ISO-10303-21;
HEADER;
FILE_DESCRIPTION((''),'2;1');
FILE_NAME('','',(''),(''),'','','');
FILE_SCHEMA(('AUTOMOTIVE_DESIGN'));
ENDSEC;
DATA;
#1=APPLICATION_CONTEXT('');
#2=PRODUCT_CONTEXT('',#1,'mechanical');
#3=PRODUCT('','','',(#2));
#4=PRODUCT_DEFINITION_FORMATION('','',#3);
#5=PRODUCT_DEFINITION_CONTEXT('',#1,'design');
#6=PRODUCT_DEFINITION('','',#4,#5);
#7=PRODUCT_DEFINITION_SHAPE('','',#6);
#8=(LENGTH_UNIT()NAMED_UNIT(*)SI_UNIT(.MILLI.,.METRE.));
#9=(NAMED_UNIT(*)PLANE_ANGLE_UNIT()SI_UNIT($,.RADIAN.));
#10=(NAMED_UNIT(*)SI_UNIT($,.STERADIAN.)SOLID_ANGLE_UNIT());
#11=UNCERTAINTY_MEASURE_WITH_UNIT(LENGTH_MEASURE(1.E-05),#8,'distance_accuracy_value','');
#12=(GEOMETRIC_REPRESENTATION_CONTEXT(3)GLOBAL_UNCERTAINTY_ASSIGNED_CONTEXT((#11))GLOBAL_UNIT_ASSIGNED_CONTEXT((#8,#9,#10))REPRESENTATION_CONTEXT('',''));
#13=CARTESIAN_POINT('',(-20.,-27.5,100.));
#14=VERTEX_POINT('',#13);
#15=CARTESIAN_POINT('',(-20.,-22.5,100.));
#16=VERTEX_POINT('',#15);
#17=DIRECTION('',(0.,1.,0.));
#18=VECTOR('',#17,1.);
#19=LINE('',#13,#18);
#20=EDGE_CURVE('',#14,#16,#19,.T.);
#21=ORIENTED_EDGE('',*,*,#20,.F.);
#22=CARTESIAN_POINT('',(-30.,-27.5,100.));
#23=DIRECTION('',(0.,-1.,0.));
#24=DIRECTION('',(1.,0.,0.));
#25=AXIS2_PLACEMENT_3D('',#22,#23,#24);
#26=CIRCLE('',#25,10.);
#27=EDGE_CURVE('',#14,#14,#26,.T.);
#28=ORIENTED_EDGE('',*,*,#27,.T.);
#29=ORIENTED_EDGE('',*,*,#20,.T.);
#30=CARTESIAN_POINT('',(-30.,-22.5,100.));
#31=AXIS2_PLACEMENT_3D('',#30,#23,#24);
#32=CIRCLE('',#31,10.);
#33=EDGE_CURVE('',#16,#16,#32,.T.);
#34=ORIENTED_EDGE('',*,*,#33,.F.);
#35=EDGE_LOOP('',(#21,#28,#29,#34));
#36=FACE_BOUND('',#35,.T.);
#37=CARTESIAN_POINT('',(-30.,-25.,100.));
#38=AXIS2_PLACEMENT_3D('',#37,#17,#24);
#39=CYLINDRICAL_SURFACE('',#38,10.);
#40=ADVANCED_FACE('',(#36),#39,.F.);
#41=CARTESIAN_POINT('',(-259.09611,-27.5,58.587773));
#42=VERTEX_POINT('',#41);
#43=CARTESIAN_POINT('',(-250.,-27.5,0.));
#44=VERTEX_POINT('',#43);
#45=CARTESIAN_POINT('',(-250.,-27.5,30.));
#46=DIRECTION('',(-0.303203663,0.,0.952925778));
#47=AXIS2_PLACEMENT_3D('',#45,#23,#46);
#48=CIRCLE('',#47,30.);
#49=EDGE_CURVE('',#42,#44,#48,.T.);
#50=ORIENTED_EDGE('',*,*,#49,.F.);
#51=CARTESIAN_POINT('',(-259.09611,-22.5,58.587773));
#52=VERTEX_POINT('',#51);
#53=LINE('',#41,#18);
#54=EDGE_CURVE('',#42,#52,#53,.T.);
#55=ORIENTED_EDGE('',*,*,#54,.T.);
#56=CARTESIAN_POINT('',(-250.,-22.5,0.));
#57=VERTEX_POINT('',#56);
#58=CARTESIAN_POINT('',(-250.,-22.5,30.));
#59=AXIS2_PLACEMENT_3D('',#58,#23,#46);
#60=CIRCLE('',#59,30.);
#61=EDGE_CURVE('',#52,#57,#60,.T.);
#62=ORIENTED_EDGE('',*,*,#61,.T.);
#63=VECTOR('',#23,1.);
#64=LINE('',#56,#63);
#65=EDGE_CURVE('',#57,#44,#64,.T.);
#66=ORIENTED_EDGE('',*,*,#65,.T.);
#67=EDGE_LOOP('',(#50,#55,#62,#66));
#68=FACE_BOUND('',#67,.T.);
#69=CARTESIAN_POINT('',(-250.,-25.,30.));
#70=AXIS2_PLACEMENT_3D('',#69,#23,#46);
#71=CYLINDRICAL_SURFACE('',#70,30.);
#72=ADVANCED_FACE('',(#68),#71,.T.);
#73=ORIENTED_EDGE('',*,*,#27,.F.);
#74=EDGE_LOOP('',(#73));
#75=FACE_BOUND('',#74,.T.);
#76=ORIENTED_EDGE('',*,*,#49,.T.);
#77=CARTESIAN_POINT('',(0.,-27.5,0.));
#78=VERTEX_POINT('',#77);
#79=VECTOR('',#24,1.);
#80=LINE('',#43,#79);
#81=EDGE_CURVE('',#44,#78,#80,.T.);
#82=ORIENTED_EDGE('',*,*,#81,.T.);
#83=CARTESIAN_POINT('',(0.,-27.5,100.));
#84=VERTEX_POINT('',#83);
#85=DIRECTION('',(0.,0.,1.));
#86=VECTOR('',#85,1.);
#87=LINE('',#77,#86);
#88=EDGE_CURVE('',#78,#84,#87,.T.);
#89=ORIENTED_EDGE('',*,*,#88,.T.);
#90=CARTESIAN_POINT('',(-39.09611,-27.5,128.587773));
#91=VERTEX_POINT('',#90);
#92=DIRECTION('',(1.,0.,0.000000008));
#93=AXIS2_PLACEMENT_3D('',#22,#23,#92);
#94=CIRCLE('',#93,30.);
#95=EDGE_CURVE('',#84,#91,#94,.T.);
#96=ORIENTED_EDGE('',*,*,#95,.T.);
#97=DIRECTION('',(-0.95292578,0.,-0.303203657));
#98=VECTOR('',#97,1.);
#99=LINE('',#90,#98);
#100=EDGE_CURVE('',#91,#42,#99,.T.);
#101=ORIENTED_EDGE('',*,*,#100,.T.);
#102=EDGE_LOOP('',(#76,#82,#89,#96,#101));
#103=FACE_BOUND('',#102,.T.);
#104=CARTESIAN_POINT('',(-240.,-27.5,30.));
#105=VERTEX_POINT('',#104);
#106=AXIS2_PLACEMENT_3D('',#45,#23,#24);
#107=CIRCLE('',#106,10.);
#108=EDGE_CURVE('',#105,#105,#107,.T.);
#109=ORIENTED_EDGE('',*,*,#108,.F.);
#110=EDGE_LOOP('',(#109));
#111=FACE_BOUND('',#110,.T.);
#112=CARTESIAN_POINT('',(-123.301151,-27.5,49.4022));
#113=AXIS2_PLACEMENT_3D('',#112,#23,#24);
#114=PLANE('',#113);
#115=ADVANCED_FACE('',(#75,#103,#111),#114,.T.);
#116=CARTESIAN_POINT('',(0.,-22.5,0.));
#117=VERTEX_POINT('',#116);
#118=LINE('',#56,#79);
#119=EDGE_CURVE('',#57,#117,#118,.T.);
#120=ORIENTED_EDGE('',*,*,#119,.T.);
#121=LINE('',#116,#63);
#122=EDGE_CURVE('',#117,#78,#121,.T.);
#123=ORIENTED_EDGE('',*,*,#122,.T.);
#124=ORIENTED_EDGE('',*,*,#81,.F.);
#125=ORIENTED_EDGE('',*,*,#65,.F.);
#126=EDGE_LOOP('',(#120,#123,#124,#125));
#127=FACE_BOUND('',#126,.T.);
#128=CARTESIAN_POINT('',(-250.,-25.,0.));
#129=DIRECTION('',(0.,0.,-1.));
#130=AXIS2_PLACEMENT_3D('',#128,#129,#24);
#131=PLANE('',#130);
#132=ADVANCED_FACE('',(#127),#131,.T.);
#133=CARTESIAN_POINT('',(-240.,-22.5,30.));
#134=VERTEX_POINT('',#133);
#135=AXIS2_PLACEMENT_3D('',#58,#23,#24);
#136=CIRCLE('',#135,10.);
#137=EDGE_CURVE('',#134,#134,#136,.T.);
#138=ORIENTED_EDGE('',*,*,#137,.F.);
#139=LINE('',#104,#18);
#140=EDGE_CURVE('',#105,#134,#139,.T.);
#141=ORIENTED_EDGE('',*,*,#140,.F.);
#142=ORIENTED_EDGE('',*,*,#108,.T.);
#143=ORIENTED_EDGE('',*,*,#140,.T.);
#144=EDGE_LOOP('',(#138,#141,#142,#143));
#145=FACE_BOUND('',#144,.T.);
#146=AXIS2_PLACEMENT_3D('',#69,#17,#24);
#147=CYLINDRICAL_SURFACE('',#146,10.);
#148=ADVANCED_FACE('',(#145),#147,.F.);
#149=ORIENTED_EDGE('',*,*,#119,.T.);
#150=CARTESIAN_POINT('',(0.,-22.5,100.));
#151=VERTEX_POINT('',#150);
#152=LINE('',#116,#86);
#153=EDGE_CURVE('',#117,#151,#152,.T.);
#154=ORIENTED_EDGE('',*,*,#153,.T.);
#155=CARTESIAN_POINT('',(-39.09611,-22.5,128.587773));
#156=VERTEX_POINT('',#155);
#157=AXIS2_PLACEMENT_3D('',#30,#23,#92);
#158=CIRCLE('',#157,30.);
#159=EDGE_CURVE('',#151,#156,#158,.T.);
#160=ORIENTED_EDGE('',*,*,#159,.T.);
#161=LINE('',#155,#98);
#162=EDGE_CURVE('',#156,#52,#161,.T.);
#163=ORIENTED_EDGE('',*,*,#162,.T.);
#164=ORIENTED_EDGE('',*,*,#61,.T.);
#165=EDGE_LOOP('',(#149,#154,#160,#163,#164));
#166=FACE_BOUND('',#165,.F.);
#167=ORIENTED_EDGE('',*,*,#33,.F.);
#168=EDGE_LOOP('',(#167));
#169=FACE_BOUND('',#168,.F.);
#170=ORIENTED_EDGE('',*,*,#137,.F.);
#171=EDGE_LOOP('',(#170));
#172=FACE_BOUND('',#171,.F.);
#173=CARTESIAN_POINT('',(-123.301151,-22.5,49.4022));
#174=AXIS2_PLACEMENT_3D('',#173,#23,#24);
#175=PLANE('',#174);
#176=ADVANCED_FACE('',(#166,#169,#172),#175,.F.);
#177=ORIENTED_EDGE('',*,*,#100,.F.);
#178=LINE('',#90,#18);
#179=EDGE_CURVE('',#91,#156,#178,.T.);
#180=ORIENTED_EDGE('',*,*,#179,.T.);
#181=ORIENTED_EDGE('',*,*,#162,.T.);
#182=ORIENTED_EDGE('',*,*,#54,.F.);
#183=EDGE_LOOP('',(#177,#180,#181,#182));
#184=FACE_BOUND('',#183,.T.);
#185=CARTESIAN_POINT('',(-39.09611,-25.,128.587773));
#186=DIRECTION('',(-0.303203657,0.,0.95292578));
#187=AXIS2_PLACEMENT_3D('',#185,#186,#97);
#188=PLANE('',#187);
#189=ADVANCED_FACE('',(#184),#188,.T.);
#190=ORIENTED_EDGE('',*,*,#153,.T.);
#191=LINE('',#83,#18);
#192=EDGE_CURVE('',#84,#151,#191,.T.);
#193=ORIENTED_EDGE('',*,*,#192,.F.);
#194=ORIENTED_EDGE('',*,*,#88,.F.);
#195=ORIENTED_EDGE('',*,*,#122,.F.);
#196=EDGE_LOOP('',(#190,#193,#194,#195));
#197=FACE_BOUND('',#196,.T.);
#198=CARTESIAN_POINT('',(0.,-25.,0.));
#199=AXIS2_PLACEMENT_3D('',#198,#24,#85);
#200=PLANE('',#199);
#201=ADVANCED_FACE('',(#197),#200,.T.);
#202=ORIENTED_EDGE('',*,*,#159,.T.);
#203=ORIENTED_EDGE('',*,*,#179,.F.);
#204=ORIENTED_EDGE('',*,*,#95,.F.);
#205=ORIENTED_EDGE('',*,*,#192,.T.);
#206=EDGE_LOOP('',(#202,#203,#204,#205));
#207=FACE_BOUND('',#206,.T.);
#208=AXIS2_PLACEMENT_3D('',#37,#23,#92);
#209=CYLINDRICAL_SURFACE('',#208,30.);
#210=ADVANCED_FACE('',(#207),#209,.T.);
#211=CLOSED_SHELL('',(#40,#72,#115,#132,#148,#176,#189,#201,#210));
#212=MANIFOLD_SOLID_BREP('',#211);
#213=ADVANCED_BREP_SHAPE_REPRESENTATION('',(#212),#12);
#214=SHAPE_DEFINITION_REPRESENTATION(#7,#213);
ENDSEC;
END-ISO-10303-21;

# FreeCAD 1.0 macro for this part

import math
import FreeCAD as App
import Part
import Sketcher
Q = App.Units.Quantity

doc = App.newDocument("Part")
body = doc.addObject("PartDesign::Body", "Body")

sketch1 = body.newObject("Sketcher::SketchObject", "Sketch")
sketch1.AttachmentSupport = (doc.getObject("XZ_Plane"), [""])
sketch1.MapMode = "FlatFace"
sketch1.AttachmentOffset = App.Placement(App.Vector(0, 0, 25), App.Rotation())
sketch1.addGeometry(Part.ArcOfCircle(Part.Circle(App.Vector(-250, 30, 0), App.Vector(0, 0, 1), 30), math.radians(108), math.radians(270)), False)
sketch1.addGeometry(Part.LineSegment(App.Vector(-250, 0, 0), App.Vector(0, 0, 0)), False)
sketch1.addGeometry(Part.LineSegment(App.Vector(0, 0, 0), App.Vector(0, 100, 0)), False)
sketch1.addGeometry(Part.ArcOfCircle(Part.Circle(App.Vector(-30, 100, 0), App.Vector(0, 0, 1), 30), math.radians(0), math.radians(108)), False)
sketch1.addGeometry(Part.LineSegment(App.Vector(-39, 129, 0), App.Vector(-259, 59, 0)), False)
sketch1.addGeometry(Part.Circle(App.Vector(-250, 30, 0), App.Vector(0, 0, 1), 10), False)
sketch1.addGeometry(Part.Circle(App.Vector(-30, 100, 0), App.Vector(0, 0, 1), 10), False)
sketch1.addConstraint(Sketcher.Constraint("Tangent", 0, 2, 1, 1))
sketch1.addConstraint(Sketcher.Constraint("Coincident", 1, 2, 2, 1))
sketch1.addConstraint(Sketcher.Constraint("Tangent", 2, 2, 3, 1))
sketch1.addConstraint(Sketcher.Constraint("Tangent", 3, 2, 4, 1))
sketch1.addConstraint(Sketcher.Constraint("Tangent", 4, 2, 0, 1))
sketch1.addConstraint(Sketcher.Constraint("Horizontal", 1))
sketch1.addConstraint(Sketcher.Constraint("Vertical", 2))
sketch1.addConstraint(Sketcher.Constraint("Coincident", 1, 2, -1, 1))
sketch1.addConstraint(Sketcher.Constraint("Coincident", 5, 3, 0, 3))
sketch1.addConstraint(Sketcher.Constraint("Coincident", 6, 3, 3, 3))
sketch1.addConstraint(Sketcher.Constraint("Equal", 0, 3))
sketch1.addConstraint(Sketcher.Constraint("Equal", 5, 6))
sketch1.addConstraint(Sketcher.Constraint("Diameter", 5, Q("20 mm")))
sketch1.addConstraint(Sketcher.Constraint("Radius", 0, Q("30 mm")))
sketch1.addConstraint(Sketcher.Constraint("DistanceX", 1, 1, 1, 2, Q("250 mm")))
sketch1.addConstraint(Sketcher.Constraint("DistanceY", 2, 1, 2, 2, Q("100 mm")))
pad1 = body.newObject("PartDesign::Pad", "Pad")
pad1.Profile = sketch1
pad1.Length = 5
pad1.Midplane = True

doc.recompute()
